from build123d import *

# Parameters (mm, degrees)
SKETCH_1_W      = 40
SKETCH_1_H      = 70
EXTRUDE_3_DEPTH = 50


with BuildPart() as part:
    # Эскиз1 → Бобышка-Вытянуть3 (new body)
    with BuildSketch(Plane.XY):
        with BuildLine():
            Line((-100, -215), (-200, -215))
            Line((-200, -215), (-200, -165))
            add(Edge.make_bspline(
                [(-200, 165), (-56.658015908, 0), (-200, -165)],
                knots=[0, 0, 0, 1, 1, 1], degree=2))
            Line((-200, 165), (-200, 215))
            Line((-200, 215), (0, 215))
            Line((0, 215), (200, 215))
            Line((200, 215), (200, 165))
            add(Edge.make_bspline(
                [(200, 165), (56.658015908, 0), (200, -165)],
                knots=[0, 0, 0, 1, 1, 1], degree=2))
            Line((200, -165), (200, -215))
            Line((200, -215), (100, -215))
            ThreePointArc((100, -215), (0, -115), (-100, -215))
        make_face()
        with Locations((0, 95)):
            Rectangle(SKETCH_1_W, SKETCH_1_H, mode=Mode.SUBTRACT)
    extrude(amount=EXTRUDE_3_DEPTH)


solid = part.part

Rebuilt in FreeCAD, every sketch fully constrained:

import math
import FreeCAD as App
import Part
import Sketcher

V = App.Vector


def add_polygon(sketch, points):
    """Adds a closed chain of lines whose ends are joined by coincident constraints."""
    first, n = sketch.GeometryCount, len(points)
    for a, b in zip(points, points[1:] + points[:1]):
        sketch.addGeometry(Part.LineSegment(App.Vector(*a, 0), App.Vector(*b, 0)), False)
    for i in range(n):
        sketch.addConstraint(Sketcher.Constraint("Coincident", first + i, 2, first + (i + 1) % n, 1))

doc = App.newDocument("Part")
params = doc.addObject("Spreadsheet::Sheet", "Params")
for row, (alias, value) in enumerate([
    ("sketch1_radius", "100 mm"),
    ("sketch1_width", "40 mm"),
    ("sketch1_height", "50 mm"),
    ("sketch1_height2", "70 mm"),
    ("pad1_length", "50 mm"),
], start=1):
    params.set(f"A{row}", alias)
    params.set(f"B{row}", "=" + value)
    params.setAlias(f"B{row}", alias)

body = doc.addObject("PartDesign::Body", "Body")

# Sketch on XY plane
sketch1 = body.newObject("Sketcher::SketchObject", "Sketch")
sketch1.AttachmentSupport = (doc.getObject("XY_Plane"), [""])
sketch1.MapMode = "FlatFace"
sketch1.addGeometry(Part.LineSegment(V(-200, -215, 0), V(-100, -215, 0)), False)  # 0
sketch1.addGeometry(Part.ArcOfCircle(Part.Circle(V(0, -215, 0), V(0, 0, 1), 100), math.radians(0), math.radians(180)), False)  # 1
sketch1.addGeometry(Part.LineSegment(V(100, -215, 0), V(200, -215, 0)), False)  # 2
sketch1.addGeometry(Part.LineSegment(V(200, -215, 0), V(200, -165, 0)), False)  # 3
sketch1.addGeometry(Part.BSplineCurve([V(200, 165, 0), V(56.658016, 0, 0), V(200, -165, 0)], [3, 3], [0, 1], False, 2, [1, 1, 1], False), False)  # 4
sketch1.addGeometry(Part.LineSegment(V(200, 165, 0), V(200, 215, 0)), False)  # 5
sketch1.addGeometry(Part.LineSegment(V(200, 215, 0), V(-200, 215, 0)), False)  # 6
sketch1.addGeometry(Part.LineSegment(V(-200, 215, 0), V(-200, 165, 0)), False)  # 7
sketch1.addGeometry(Part.BSplineCurve([V(-200, 165, 0), V(-56.658016, 0, 0), V(-200, -165, 0)], [3, 3], [0, 1], False, 2, [1, 1, 1], False), False)  # 8
sketch1.addGeometry(Part.LineSegment(V(-200, -165, 0), V(-200, -215, 0)), False)  # 9
add_polygon(sketch1, [(-20, 60), (-20, 130), (20, 130), (20, 60)])  # lines 10-13
sketch1.addConstraint(Sketcher.Constraint("Block", 4))
sketch1.addConstraint(Sketcher.Constraint("Block", 8))
sketch1.addConstraint(Sketcher.Constraint("Coincident", 0, 2, 1, 2))
sketch1.addConstraint(Sketcher.Constraint("Coincident", 1, 1, 2, 1))
sketch1.addConstraint(Sketcher.Constraint("Coincident", 2, 2, 3, 1))
sketch1.addConstraint(Sketcher.Constraint("Coincident", 3, 2, 4, 2))
sketch1.addConstraint(Sketcher.Constraint("Coincident", 4, 1, 5, 1))
sketch1.addConstraint(Sketcher.Constraint("Coincident", 5, 2, 6, 1))
sketch1.addConstraint(Sketcher.Constraint("Coincident", 6, 2, 7, 1))
sketch1.addConstraint(Sketcher.Constraint("Coincident", 7, 2, 8, 1))
sketch1.addConstraint(Sketcher.Constraint("Coincident", 8, 2, 9, 1))
sketch1.addConstraint(Sketcher.Constraint("Coincident", 9, 2, 0, 1))
sketch1.addConstraint(Sketcher.Constraint("Horizontal", 0))
sketch1.addConstraint(Sketcher.Constraint("Horizontal", 2))
sketch1.addConstraint(Sketcher.Constraint("Vertical", 3))
sketch1.addConstraint(Sketcher.Constraint("Vertical", 5))
sketch1.addConstraint(Sketcher.Constraint("Horizontal", 6))
sketch1.addConstraint(Sketcher.Constraint("Vertical", 7))
sketch1.addConstraint(Sketcher.Constraint("Vertical", 9))
sketch1.addConstraint(Sketcher.Constraint("Vertical", 10))
sketch1.addConstraint(Sketcher.Constraint("Horizontal", 11))
sketch1.addConstraint(Sketcher.Constraint("Vertical", 12))
sketch1.addConstraint(Sketcher.Constraint("Horizontal", 13))
sketch1.addConstraint(Sketcher.Constraint("Symmetric", 0, 2, 1, 1, -2))
sketch1.addConstraint(Sketcher.Constraint("Horizontal", 1, 3, 0, 2))
sketch1.addConstraint(Sketcher.Constraint("Equal", 3, 5))
sketch1.addConstraint(Sketcher.Constraint("Radius", 1, 100.0))
sketch1.addConstraint(Sketcher.Constraint("DistanceX", 11, 1, 11, 2, 40.0))
sketch1.addConstraint(Sketcher.Constraint("DistanceY", 3, 1, 3, 2, 50.0))
sketch1.addConstraint(Sketcher.Constraint("DistanceY", 10, 1, 10, 2, 70.0))
sketch1.addConstraint(Sketcher.Constraint("DistanceX", 10, 2, -1, 1, 20.0))
sketch1.addConstraint(Sketcher.Constraint("DistanceY", -1, 1, 10, 2, 130.0))
sketch1.setExpression("Constraints[30]", "Params.sketch1_radius")
sketch1.setExpression("Constraints[31]", "Params.sketch1_width")
sketch1.setExpression("Constraints[32]", "Params.sketch1_height")
sketch1.setExpression("Constraints[33]", "Params.sketch1_height2")
pad1 = body.newObject("PartDesign::Pad", "Pad")
pad1.Profile = sketch1
pad1.setExpression("Length", "Params.pad1_length")

doc.recompute()
